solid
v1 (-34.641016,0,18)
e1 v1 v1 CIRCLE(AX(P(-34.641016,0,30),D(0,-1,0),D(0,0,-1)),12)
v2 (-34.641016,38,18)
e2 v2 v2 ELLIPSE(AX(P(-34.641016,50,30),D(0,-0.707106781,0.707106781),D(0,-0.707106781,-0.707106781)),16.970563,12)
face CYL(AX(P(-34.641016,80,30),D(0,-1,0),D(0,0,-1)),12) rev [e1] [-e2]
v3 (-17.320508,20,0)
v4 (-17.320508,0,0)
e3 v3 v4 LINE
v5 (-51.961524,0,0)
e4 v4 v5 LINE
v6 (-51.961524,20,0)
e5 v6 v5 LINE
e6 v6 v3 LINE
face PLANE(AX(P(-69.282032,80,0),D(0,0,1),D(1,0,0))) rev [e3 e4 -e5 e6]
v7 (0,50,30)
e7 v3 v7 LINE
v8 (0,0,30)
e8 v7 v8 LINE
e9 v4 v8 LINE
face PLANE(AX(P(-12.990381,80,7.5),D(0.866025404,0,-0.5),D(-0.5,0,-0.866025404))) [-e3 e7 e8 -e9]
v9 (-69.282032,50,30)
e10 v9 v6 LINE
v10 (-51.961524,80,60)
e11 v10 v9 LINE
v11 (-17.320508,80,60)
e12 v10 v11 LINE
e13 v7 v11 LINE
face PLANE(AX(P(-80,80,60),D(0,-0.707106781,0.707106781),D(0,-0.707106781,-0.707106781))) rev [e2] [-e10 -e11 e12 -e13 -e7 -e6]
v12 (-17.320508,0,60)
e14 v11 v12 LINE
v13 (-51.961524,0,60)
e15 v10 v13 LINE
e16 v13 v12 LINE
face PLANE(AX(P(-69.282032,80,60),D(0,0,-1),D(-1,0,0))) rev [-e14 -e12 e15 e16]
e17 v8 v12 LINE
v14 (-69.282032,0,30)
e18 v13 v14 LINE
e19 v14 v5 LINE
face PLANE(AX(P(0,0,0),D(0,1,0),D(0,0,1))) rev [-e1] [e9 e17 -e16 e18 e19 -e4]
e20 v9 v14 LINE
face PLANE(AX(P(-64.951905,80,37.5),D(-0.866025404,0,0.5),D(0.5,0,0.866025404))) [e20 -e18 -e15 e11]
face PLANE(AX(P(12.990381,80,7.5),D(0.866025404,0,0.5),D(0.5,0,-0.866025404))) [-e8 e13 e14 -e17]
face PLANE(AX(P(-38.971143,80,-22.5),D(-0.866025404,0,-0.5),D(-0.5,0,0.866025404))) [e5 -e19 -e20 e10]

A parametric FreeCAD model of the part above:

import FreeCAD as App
import Part
import Sketcher
from FreeCAD import Vector
Q = App.Units.Quantity


def add_polygon(sketch, points):
    """Adds a closed chain of lines whose ends are joined by coincident constraints."""
    first, n = sketch.GeometryCount, len(points)
    for a, b in zip(points, points[1:] + points[:1]):
        sketch.addGeometry(Part.LineSegment(App.Vector(*a, 0), App.Vector(*b, 0)), False)
    for i in range(n):
        sketch.addConstraint(Sketcher.Constraint("Coincident", first + i, 2, first + (i + 1) % n, 1))

doc = App.newDocument("Part")
body = doc.addObject("PartDesign::Body", "Body")

# Sketch on XZ plane
sketch1 = doc.addObject("Sketcher::SketchObject", "Sketch")
body.addObject(sketch1)
sketch1.AttachmentSupport = (doc.XZ_Plane, [""])
sketch1.MapMode = "FlatFace"
add_polygon(sketch1, [(-69.282032, 0), (-69.282032, 60), (0, 60), (0, 0)])  # lines 0-3
sketch1.addConstraint([
    Sketcher.Constraint("Vertical", 0),
    Sketcher.Constraint("Horizontal", 1),
    Sketcher.Constraint("Vertical", 2),
    Sketcher.Constraint("Horizontal", 3),
    Sketcher.Constraint("Coincident", 2, 2, -1, 1),
    Sketcher.Constraint("DistanceY", 0, 1, 0, 2, 60.0),
    Sketcher.Constraint("DistanceX", 1, 1, 1, 2, 69.282032),
])
pad1 = doc.addObject("PartDesign::Pad", "Pad")
body.addObject(pad1)
pad1.Profile = sketch1
pad1.Length = 80
pad1.Reversed = True

# Sketch on YZ plane
sketch2 = doc.addObject("Sketcher::SketchObject", "Sketch001")
body.addObject(sketch2)
sketch2.AttachmentSupport = (doc.YZ_Plane, [""])
sketch2.MapMode = "FlatFace"
add_polygon(sketch2, [(80, 60), (20, 0), (80, 0)])  # lines 0-2
sketch2.addConstraint([
    Sketcher.Constraint("Horizontal", 1),
    Sketcher.Constraint("Vertical", 2),
    Sketcher.Constraint("PointOnObject", 0, 2, -1),
    Sketcher.Constraint("Equal", 1, 2),
    Sketcher.Constraint("DistanceX", 1, 1, 1, 2, 60.0),
    Sketcher.Constraint("DistanceX", -1, 1, 0, 2, 20.0),
])
pocket1 = doc.addObject("PartDesign::Pocket", "Pocket")
body.addObject(pocket1)
pocket1.Profile = sketch2
pocket1.Length = 80

# Sketch on XZ plane
sketch3 = doc.addObject("Sketcher::SketchObject", "Sketch002")
body.addObject(sketch3)
sketch3.AttachmentSupport = (doc.XZ_Plane, [""])
sketch3.MapMode = "FlatFace"
add_polygon(sketch3, [(-69.282032, 30), (-51.961524, 60), (-69.282032, 60)])  # lines 0-2
add_polygon(sketch3, [(-51.961524, 0), (-69.282032, 30), (-69.282032, 0)])  # lines 3-5
add_polygon(sketch3, [(0, 60), (-17.320508, 60), (0, 30)])  # lines 6-8
add_polygon(sketch3, [(0, 0), (0, 30), (-17.320508, 0)])  # lines 9-11
sketch3.addGeometry(Part.Circle(Vector(-34.641016, 30, 0), Vector(0, 0, 1), 12), False)  # 12
sketch3.addConstraint([
    Sketcher.Constraint("Horizontal", 1),
    Sketcher.Constraint("Vertical", 2),
    Sketcher.Constraint("Vertical", 4),
    Sketcher.Constraint("Horizontal", 5),
    Sketcher.Constraint("Horizontal", 6),
    Sketcher.Constraint("Vertical", 8),
    Sketcher.Constraint("Vertical", 9),
    Sketcher.Constraint("Horizontal", 11),
    Sketcher.Constraint("Coincident", 11, 2, -1, 1),
    Sketcher.Constraint("Coincident", 3, 2, 2, 2),
    Sketcher.Constraint("Coincident", 9, 2, 7, 2),
    Sketcher.Constraint("PointOnObject", 4, 2, -1),
    Sketcher.Constraint("Parallel", 3, 7),
    Sketcher.Constraint("Parallel", 0, 10),
    Sketcher.Constraint("Horizontal", 12, 3, 2, 2),
    Sketcher.Constraint("Horizontal", 1, 2, 6, 2),
    Sketcher.Constraint("Horizontal", 3, 2, 7, 2),
    Sketcher.Constraint("Vertical", 0, 2, 5, 2),
    Sketcher.Constraint("Vertical", 6, 2, 10, 2),
    Sketcher.Constraint("Diameter", 12, 24.0),
    Sketcher.Constraint("DistanceY", 2, 2, 2, 1, 30.0),
    Sketcher.Constraint("Angle", 0, Q("60 deg")),
    Sketcher.Constraint("DistanceX", 0, 2, 12, 3, 17.320508),
    Sketcher.Constraint("DistanceX", 12, 3, 6, 2, 17.320508),
])
pocket2 = doc.addObject("PartDesign::Pocket", "Pocket001")
body.addObject(pocket2)
pocket2.Profile = sketch3
pocket2.Length = 80

doc.recompute()
